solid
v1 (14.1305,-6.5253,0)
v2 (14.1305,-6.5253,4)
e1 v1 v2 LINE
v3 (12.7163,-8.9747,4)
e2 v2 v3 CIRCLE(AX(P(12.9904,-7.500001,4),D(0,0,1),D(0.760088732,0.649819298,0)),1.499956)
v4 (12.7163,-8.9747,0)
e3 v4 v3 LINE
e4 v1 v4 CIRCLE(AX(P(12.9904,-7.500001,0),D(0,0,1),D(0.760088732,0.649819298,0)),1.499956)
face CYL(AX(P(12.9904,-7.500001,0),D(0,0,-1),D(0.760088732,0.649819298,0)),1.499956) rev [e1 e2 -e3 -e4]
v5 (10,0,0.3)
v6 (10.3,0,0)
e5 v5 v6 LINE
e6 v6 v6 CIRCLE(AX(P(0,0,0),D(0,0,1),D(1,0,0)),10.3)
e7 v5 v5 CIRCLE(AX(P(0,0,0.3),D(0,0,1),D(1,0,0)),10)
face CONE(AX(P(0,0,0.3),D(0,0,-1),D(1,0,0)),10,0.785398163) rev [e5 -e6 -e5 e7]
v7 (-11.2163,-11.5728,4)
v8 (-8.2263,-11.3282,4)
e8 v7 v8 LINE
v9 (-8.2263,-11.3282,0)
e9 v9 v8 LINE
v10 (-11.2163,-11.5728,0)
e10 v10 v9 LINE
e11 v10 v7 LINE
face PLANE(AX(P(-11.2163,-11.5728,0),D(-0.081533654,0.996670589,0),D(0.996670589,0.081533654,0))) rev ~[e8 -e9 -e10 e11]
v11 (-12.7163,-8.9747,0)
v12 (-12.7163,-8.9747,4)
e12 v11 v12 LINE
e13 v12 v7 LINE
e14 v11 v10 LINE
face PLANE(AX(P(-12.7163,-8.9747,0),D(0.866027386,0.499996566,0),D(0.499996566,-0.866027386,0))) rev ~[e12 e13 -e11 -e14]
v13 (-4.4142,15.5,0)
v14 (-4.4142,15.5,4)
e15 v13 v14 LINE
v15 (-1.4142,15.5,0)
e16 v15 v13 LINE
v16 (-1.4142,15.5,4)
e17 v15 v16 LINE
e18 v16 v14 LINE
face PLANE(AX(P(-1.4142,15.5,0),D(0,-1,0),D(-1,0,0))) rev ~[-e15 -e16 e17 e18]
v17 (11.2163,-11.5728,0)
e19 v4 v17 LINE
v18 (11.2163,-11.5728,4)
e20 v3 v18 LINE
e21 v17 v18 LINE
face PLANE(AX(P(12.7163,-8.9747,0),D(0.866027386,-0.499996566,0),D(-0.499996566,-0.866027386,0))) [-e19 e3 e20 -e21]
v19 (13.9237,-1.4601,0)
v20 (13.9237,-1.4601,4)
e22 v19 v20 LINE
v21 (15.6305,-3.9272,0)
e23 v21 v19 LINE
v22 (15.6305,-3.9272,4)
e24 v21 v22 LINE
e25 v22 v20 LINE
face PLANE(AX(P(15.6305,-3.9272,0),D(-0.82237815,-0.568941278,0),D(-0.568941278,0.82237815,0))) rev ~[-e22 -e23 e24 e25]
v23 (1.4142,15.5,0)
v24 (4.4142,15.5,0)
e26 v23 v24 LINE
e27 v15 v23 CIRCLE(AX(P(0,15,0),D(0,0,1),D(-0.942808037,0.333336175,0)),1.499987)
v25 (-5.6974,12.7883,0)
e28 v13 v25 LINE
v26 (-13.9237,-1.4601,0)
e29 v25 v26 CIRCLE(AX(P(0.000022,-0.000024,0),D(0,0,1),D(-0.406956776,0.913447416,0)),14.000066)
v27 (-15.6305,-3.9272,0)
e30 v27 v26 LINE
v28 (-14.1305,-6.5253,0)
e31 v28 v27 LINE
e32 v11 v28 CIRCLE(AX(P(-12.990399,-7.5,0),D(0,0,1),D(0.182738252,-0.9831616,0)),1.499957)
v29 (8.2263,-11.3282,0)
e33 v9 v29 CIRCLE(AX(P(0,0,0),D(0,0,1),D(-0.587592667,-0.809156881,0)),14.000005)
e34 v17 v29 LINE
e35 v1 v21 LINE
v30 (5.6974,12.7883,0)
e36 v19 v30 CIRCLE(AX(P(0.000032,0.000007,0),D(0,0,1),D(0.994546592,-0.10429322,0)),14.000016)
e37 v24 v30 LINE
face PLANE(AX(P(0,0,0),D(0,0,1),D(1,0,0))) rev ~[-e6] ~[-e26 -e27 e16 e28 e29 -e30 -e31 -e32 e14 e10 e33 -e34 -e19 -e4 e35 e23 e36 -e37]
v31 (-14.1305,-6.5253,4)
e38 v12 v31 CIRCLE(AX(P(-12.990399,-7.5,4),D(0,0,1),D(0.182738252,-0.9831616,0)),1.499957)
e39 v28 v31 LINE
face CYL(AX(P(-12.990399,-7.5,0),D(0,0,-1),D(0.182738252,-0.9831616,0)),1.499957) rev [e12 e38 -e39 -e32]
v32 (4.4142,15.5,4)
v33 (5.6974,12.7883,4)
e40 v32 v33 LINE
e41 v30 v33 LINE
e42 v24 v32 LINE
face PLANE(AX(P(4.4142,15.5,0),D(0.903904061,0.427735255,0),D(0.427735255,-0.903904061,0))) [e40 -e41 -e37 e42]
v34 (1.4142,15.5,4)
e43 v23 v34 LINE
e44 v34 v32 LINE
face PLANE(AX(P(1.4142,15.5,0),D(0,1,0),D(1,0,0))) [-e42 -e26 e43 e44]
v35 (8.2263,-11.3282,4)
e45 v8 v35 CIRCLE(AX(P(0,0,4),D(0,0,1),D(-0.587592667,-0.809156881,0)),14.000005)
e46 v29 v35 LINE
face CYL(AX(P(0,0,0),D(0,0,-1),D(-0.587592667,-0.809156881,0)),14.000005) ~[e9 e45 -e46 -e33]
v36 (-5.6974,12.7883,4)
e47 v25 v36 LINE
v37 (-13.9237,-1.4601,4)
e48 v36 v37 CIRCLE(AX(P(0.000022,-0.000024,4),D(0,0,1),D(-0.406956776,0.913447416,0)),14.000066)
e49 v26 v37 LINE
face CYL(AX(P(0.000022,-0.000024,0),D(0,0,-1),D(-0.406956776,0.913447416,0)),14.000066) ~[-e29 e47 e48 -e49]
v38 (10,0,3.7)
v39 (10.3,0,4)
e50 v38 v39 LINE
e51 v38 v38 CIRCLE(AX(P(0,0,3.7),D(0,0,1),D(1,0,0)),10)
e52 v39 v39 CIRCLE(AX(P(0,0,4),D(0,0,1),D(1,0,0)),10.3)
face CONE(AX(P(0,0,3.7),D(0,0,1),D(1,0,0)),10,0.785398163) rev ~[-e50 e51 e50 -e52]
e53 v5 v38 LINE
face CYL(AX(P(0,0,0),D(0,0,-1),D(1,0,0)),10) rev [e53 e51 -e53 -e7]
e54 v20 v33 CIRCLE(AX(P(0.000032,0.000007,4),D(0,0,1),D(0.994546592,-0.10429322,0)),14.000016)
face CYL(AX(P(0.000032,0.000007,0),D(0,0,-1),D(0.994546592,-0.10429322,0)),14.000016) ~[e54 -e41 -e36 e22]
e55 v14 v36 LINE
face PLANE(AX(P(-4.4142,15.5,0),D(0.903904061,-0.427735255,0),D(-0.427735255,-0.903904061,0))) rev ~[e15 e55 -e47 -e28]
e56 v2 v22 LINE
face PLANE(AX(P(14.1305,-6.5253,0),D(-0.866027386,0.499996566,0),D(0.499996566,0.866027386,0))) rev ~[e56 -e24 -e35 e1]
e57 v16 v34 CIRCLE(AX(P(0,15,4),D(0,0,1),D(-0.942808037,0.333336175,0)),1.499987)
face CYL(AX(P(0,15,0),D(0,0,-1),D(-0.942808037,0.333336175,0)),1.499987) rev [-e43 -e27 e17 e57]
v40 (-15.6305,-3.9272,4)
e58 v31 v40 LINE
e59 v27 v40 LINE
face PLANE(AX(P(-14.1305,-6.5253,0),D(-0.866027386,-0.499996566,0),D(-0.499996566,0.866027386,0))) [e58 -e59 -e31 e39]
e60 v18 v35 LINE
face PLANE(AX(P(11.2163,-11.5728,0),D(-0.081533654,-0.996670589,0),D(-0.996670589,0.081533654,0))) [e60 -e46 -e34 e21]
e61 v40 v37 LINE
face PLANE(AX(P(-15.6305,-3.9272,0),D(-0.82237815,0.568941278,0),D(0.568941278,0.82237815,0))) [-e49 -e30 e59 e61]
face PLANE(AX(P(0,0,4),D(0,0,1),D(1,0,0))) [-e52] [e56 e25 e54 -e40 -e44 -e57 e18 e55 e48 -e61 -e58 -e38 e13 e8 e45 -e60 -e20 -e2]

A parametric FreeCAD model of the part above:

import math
import FreeCAD as App
import Part
import Sketcher
Q = App.Units.Quantity


def edges_at(feature, points):
    """Names of the edges that pass closest to the given points."""
    edges = feature.Shape.Edges
    near = lambda p: min(range(len(edges)), key=lambda i: edges[i].distToShape(Part.Vertex(*p))[0])
    return sorted({f"Edge{near(p) + 1}" for p in points})

doc = App.newDocument("Part")
body = doc.addObject("PartDesign::Body", "Body")

sketch1 = doc.addObject("Sketcher::SketchObject", "Sketch")
body.addObject(sketch1)
sketch1.AttachmentSupport = (doc.XY_Plane, [""])
sketch1.MapMode = "FlatFace"
sketch1.addGeometry([
    Part.ArcOfCircle(Part.Circle(App.Vector(0, 15, 0), App.Vector(0, 0, 1), 1.5), math.radians(161), math.radians(379)),
    Part.LineSegment(App.Vector(-1.4, 15.5, 0), App.Vector(-4.4, 15.5, 0)),
    Part.LineSegment(App.Vector(-4.4, 15.5, 0), App.Vector(-5.7, 12.8, 0)),
    Part.ArcOfCircle(Part.Circle(App.Vector(0, 0, 0), App.Vector(0, 0, 1), 14), math.radians(114), math.radians(186)),
    Part.LineSegment(App.Vector(-13.9, -1.5, 0), App.Vector(-15.6, -3.9, 0)),
    Part.LineSegment(App.Vector(-15.6, -3.9, 0), App.Vector(-14.1, -6.5, 0)),
    Part.ArcOfCircle(Part.Circle(App.Vector(-13, -7.5, 0), App.Vector(0, 0, 1), 1.5), math.radians(-79), math.radians(139)),
    Part.LineSegment(App.Vector(-12.7, -9, 0), App.Vector(-11.2, -11.6, 0)),
    Part.LineSegment(App.Vector(-11.2, -11.6, 0), App.Vector(-8.2, -11.3, 0)),
    Part.ArcOfCircle(Part.Circle(App.Vector(0, 0, 0), App.Vector(0, 0, 1), 14), math.radians(-126), math.radians(-54)),
    Part.LineSegment(App.Vector(8.2, -11.3, 0), App.Vector(11.2, -11.6, 0)),
    Part.LineSegment(App.Vector(11.2, -11.6, 0), App.Vector(12.7, -9, 0)),
    Part.ArcOfCircle(Part.Circle(App.Vector(13, -7.5, 0), App.Vector(0, 0, 1), 1.5), math.radians(41), math.radians(259)),
    Part.LineSegment(App.Vector(14.1, -6.5, 0), App.Vector(15.6, -3.9, 0)),
    Part.LineSegment(App.Vector(15.6, -3.9, 0), App.Vector(13.9, -1.5, 0)),
    Part.ArcOfCircle(Part.Circle(App.Vector(0, 0, 0), App.Vector(0, 0, 1), 14), math.radians(-6), math.radians(66)),
    Part.LineSegment(App.Vector(5.7, 12.8, 0), App.Vector(4.4, 15.5, 0)),
    Part.LineSegment(App.Vector(4.4, 15.5, 0), App.Vector(1.4, 15.5, 0)),
    Part.Circle(App.Vector(0, 0, 0), App.Vector(0, 0, 1), 10),
], False)
sketch1.addConstraint([
    Sketcher.Constraint("Coincident", 0, 1, 1, 1),
    Sketcher.Constraint("Coincident", 1, 2, 2, 1),
    Sketcher.Constraint("Coincident", 2, 2, 3, 1),
    Sketcher.Constraint("Coincident", 3, 2, 4, 1),
    Sketcher.Constraint("Coincident", 4, 2, 5, 1),
    Sketcher.Constraint("Coincident", 5, 2, 6, 2),
    Sketcher.Constraint("Coincident", 6, 1, 7, 1),
    Sketcher.Constraint("Coincident", 7, 2, 8, 1),
    Sketcher.Constraint("Coincident", 8, 2, 9, 1),
    Sketcher.Constraint("Coincident", 9, 2, 10, 1),
    Sketcher.Constraint("Coincident", 10, 2, 11, 1),
    Sketcher.Constraint("Coincident", 11, 2, 12, 2),
    Sketcher.Constraint("Coincident", 12, 1, 13, 1),
    Sketcher.Constraint("Coincident", 13, 2, 14, 1),
    Sketcher.Constraint("Coincident", 14, 2, 15, 1),
    Sketcher.Constraint("Coincident", 15, 2, 16, 1),
    Sketcher.Constraint("Coincident", 16, 2, 17, 1),
    Sketcher.Constraint("Coincident", 17, 2, 0, 2),
    Sketcher.Constraint("Horizontal", 1),
    Sketcher.Constraint("Horizontal", 17),
    Sketcher.Constraint("Coincident", 3, 3, -1, 1),
    Sketcher.Constraint("Coincident", 9, 3, -1, 1),
    Sketcher.Constraint("Coincident", 15, 3, -1, 1),
    Sketcher.Constraint("Coincident", 18, 3, -1, 1),
    Sketcher.Constraint("Equal", 0, 6),
    Sketcher.Constraint("Equal", 3, 9),
    Sketcher.Constraint("Equal", 6, 12),
    Sketcher.Constraint("Equal", 9, 15),
    Sketcher.Constraint("Symmetric", 6, 3, 12, 3, -2),
    Sketcher.Constraint("Symmetric", 7, 2, 10, 2, -2),
    Sketcher.Constraint("Symmetric", 4, 2, 13, 2, -2),
    Sketcher.Constraint("Symmetric", 1, 2, 16, 2, -2),
    Sketcher.Constraint("PointOnObject", 0, 3, -2),
    Sketcher.Constraint("Parallel", 5, 7),
    Sketcher.Constraint("Parallel", 11, 13),
    Sketcher.Constraint("Horizontal", 8, 2, 9, 2),
    Sketcher.Constraint("Horizontal", 6, 1, 11, 2),
    Sketcher.Constraint("Horizontal", 3, 2, 14, 2),
    Sketcher.Constraint("Horizontal", 2, 2, 15, 2),
    Sketcher.Constraint("Equal", 2, 4),
    Sketcher.Constraint("Equal", 4, 5),
    Sketcher.Constraint("Equal", 5, 7),
    Sketcher.Constraint("Equal", 7, 8),
    Sketcher.Constraint("Diameter", 18, 20.0),
    Sketcher.Constraint("Radius", 3, 14.0),
    Sketcher.Constraint("Radius", 0, 1.5),
    Sketcher.Constraint("DistanceX", 1, 2, 1, 1, 3.0),
    Sketcher.Constraint("Distance", 2, 3.0),
    Sketcher.Constraint("DistanceY", -1, 1, 0, 3, 15.0),
    Sketcher.Constraint("DistanceY", 0, 3, 0, 1, 0.5),
    Sketcher.Constraint("Angle", 5, Q("-60.0002 deg")),
    Sketcher.Constraint("DistanceY", 6, 3, -1, 1, 7.5),
    Sketcher.Constraint("DistanceY", 3, 2, -1, 1, 1.46),
    Sketcher.Constraint("DistanceX", 4, 2, 6, 3, 2.64),
    Sketcher.Constraint("DistanceX", 7, 2, 8, 2, 2.99),
])
pad1 = doc.addObject("PartDesign::Pad", "Pad")
body.addObject(pad1)
pad1.Profile = sketch1
pad1.Length = 4
doc.recompute()

chamfer = doc.addObject("PartDesign::Chamfer", "Chamfer")
body.addObject(chamfer)
chamfer.Base = (pad1, edges_at(pad1, [(-10, 0, 0), (-10, 0, 4)]))
chamfer.Size = 0.3

doc.recompute()
